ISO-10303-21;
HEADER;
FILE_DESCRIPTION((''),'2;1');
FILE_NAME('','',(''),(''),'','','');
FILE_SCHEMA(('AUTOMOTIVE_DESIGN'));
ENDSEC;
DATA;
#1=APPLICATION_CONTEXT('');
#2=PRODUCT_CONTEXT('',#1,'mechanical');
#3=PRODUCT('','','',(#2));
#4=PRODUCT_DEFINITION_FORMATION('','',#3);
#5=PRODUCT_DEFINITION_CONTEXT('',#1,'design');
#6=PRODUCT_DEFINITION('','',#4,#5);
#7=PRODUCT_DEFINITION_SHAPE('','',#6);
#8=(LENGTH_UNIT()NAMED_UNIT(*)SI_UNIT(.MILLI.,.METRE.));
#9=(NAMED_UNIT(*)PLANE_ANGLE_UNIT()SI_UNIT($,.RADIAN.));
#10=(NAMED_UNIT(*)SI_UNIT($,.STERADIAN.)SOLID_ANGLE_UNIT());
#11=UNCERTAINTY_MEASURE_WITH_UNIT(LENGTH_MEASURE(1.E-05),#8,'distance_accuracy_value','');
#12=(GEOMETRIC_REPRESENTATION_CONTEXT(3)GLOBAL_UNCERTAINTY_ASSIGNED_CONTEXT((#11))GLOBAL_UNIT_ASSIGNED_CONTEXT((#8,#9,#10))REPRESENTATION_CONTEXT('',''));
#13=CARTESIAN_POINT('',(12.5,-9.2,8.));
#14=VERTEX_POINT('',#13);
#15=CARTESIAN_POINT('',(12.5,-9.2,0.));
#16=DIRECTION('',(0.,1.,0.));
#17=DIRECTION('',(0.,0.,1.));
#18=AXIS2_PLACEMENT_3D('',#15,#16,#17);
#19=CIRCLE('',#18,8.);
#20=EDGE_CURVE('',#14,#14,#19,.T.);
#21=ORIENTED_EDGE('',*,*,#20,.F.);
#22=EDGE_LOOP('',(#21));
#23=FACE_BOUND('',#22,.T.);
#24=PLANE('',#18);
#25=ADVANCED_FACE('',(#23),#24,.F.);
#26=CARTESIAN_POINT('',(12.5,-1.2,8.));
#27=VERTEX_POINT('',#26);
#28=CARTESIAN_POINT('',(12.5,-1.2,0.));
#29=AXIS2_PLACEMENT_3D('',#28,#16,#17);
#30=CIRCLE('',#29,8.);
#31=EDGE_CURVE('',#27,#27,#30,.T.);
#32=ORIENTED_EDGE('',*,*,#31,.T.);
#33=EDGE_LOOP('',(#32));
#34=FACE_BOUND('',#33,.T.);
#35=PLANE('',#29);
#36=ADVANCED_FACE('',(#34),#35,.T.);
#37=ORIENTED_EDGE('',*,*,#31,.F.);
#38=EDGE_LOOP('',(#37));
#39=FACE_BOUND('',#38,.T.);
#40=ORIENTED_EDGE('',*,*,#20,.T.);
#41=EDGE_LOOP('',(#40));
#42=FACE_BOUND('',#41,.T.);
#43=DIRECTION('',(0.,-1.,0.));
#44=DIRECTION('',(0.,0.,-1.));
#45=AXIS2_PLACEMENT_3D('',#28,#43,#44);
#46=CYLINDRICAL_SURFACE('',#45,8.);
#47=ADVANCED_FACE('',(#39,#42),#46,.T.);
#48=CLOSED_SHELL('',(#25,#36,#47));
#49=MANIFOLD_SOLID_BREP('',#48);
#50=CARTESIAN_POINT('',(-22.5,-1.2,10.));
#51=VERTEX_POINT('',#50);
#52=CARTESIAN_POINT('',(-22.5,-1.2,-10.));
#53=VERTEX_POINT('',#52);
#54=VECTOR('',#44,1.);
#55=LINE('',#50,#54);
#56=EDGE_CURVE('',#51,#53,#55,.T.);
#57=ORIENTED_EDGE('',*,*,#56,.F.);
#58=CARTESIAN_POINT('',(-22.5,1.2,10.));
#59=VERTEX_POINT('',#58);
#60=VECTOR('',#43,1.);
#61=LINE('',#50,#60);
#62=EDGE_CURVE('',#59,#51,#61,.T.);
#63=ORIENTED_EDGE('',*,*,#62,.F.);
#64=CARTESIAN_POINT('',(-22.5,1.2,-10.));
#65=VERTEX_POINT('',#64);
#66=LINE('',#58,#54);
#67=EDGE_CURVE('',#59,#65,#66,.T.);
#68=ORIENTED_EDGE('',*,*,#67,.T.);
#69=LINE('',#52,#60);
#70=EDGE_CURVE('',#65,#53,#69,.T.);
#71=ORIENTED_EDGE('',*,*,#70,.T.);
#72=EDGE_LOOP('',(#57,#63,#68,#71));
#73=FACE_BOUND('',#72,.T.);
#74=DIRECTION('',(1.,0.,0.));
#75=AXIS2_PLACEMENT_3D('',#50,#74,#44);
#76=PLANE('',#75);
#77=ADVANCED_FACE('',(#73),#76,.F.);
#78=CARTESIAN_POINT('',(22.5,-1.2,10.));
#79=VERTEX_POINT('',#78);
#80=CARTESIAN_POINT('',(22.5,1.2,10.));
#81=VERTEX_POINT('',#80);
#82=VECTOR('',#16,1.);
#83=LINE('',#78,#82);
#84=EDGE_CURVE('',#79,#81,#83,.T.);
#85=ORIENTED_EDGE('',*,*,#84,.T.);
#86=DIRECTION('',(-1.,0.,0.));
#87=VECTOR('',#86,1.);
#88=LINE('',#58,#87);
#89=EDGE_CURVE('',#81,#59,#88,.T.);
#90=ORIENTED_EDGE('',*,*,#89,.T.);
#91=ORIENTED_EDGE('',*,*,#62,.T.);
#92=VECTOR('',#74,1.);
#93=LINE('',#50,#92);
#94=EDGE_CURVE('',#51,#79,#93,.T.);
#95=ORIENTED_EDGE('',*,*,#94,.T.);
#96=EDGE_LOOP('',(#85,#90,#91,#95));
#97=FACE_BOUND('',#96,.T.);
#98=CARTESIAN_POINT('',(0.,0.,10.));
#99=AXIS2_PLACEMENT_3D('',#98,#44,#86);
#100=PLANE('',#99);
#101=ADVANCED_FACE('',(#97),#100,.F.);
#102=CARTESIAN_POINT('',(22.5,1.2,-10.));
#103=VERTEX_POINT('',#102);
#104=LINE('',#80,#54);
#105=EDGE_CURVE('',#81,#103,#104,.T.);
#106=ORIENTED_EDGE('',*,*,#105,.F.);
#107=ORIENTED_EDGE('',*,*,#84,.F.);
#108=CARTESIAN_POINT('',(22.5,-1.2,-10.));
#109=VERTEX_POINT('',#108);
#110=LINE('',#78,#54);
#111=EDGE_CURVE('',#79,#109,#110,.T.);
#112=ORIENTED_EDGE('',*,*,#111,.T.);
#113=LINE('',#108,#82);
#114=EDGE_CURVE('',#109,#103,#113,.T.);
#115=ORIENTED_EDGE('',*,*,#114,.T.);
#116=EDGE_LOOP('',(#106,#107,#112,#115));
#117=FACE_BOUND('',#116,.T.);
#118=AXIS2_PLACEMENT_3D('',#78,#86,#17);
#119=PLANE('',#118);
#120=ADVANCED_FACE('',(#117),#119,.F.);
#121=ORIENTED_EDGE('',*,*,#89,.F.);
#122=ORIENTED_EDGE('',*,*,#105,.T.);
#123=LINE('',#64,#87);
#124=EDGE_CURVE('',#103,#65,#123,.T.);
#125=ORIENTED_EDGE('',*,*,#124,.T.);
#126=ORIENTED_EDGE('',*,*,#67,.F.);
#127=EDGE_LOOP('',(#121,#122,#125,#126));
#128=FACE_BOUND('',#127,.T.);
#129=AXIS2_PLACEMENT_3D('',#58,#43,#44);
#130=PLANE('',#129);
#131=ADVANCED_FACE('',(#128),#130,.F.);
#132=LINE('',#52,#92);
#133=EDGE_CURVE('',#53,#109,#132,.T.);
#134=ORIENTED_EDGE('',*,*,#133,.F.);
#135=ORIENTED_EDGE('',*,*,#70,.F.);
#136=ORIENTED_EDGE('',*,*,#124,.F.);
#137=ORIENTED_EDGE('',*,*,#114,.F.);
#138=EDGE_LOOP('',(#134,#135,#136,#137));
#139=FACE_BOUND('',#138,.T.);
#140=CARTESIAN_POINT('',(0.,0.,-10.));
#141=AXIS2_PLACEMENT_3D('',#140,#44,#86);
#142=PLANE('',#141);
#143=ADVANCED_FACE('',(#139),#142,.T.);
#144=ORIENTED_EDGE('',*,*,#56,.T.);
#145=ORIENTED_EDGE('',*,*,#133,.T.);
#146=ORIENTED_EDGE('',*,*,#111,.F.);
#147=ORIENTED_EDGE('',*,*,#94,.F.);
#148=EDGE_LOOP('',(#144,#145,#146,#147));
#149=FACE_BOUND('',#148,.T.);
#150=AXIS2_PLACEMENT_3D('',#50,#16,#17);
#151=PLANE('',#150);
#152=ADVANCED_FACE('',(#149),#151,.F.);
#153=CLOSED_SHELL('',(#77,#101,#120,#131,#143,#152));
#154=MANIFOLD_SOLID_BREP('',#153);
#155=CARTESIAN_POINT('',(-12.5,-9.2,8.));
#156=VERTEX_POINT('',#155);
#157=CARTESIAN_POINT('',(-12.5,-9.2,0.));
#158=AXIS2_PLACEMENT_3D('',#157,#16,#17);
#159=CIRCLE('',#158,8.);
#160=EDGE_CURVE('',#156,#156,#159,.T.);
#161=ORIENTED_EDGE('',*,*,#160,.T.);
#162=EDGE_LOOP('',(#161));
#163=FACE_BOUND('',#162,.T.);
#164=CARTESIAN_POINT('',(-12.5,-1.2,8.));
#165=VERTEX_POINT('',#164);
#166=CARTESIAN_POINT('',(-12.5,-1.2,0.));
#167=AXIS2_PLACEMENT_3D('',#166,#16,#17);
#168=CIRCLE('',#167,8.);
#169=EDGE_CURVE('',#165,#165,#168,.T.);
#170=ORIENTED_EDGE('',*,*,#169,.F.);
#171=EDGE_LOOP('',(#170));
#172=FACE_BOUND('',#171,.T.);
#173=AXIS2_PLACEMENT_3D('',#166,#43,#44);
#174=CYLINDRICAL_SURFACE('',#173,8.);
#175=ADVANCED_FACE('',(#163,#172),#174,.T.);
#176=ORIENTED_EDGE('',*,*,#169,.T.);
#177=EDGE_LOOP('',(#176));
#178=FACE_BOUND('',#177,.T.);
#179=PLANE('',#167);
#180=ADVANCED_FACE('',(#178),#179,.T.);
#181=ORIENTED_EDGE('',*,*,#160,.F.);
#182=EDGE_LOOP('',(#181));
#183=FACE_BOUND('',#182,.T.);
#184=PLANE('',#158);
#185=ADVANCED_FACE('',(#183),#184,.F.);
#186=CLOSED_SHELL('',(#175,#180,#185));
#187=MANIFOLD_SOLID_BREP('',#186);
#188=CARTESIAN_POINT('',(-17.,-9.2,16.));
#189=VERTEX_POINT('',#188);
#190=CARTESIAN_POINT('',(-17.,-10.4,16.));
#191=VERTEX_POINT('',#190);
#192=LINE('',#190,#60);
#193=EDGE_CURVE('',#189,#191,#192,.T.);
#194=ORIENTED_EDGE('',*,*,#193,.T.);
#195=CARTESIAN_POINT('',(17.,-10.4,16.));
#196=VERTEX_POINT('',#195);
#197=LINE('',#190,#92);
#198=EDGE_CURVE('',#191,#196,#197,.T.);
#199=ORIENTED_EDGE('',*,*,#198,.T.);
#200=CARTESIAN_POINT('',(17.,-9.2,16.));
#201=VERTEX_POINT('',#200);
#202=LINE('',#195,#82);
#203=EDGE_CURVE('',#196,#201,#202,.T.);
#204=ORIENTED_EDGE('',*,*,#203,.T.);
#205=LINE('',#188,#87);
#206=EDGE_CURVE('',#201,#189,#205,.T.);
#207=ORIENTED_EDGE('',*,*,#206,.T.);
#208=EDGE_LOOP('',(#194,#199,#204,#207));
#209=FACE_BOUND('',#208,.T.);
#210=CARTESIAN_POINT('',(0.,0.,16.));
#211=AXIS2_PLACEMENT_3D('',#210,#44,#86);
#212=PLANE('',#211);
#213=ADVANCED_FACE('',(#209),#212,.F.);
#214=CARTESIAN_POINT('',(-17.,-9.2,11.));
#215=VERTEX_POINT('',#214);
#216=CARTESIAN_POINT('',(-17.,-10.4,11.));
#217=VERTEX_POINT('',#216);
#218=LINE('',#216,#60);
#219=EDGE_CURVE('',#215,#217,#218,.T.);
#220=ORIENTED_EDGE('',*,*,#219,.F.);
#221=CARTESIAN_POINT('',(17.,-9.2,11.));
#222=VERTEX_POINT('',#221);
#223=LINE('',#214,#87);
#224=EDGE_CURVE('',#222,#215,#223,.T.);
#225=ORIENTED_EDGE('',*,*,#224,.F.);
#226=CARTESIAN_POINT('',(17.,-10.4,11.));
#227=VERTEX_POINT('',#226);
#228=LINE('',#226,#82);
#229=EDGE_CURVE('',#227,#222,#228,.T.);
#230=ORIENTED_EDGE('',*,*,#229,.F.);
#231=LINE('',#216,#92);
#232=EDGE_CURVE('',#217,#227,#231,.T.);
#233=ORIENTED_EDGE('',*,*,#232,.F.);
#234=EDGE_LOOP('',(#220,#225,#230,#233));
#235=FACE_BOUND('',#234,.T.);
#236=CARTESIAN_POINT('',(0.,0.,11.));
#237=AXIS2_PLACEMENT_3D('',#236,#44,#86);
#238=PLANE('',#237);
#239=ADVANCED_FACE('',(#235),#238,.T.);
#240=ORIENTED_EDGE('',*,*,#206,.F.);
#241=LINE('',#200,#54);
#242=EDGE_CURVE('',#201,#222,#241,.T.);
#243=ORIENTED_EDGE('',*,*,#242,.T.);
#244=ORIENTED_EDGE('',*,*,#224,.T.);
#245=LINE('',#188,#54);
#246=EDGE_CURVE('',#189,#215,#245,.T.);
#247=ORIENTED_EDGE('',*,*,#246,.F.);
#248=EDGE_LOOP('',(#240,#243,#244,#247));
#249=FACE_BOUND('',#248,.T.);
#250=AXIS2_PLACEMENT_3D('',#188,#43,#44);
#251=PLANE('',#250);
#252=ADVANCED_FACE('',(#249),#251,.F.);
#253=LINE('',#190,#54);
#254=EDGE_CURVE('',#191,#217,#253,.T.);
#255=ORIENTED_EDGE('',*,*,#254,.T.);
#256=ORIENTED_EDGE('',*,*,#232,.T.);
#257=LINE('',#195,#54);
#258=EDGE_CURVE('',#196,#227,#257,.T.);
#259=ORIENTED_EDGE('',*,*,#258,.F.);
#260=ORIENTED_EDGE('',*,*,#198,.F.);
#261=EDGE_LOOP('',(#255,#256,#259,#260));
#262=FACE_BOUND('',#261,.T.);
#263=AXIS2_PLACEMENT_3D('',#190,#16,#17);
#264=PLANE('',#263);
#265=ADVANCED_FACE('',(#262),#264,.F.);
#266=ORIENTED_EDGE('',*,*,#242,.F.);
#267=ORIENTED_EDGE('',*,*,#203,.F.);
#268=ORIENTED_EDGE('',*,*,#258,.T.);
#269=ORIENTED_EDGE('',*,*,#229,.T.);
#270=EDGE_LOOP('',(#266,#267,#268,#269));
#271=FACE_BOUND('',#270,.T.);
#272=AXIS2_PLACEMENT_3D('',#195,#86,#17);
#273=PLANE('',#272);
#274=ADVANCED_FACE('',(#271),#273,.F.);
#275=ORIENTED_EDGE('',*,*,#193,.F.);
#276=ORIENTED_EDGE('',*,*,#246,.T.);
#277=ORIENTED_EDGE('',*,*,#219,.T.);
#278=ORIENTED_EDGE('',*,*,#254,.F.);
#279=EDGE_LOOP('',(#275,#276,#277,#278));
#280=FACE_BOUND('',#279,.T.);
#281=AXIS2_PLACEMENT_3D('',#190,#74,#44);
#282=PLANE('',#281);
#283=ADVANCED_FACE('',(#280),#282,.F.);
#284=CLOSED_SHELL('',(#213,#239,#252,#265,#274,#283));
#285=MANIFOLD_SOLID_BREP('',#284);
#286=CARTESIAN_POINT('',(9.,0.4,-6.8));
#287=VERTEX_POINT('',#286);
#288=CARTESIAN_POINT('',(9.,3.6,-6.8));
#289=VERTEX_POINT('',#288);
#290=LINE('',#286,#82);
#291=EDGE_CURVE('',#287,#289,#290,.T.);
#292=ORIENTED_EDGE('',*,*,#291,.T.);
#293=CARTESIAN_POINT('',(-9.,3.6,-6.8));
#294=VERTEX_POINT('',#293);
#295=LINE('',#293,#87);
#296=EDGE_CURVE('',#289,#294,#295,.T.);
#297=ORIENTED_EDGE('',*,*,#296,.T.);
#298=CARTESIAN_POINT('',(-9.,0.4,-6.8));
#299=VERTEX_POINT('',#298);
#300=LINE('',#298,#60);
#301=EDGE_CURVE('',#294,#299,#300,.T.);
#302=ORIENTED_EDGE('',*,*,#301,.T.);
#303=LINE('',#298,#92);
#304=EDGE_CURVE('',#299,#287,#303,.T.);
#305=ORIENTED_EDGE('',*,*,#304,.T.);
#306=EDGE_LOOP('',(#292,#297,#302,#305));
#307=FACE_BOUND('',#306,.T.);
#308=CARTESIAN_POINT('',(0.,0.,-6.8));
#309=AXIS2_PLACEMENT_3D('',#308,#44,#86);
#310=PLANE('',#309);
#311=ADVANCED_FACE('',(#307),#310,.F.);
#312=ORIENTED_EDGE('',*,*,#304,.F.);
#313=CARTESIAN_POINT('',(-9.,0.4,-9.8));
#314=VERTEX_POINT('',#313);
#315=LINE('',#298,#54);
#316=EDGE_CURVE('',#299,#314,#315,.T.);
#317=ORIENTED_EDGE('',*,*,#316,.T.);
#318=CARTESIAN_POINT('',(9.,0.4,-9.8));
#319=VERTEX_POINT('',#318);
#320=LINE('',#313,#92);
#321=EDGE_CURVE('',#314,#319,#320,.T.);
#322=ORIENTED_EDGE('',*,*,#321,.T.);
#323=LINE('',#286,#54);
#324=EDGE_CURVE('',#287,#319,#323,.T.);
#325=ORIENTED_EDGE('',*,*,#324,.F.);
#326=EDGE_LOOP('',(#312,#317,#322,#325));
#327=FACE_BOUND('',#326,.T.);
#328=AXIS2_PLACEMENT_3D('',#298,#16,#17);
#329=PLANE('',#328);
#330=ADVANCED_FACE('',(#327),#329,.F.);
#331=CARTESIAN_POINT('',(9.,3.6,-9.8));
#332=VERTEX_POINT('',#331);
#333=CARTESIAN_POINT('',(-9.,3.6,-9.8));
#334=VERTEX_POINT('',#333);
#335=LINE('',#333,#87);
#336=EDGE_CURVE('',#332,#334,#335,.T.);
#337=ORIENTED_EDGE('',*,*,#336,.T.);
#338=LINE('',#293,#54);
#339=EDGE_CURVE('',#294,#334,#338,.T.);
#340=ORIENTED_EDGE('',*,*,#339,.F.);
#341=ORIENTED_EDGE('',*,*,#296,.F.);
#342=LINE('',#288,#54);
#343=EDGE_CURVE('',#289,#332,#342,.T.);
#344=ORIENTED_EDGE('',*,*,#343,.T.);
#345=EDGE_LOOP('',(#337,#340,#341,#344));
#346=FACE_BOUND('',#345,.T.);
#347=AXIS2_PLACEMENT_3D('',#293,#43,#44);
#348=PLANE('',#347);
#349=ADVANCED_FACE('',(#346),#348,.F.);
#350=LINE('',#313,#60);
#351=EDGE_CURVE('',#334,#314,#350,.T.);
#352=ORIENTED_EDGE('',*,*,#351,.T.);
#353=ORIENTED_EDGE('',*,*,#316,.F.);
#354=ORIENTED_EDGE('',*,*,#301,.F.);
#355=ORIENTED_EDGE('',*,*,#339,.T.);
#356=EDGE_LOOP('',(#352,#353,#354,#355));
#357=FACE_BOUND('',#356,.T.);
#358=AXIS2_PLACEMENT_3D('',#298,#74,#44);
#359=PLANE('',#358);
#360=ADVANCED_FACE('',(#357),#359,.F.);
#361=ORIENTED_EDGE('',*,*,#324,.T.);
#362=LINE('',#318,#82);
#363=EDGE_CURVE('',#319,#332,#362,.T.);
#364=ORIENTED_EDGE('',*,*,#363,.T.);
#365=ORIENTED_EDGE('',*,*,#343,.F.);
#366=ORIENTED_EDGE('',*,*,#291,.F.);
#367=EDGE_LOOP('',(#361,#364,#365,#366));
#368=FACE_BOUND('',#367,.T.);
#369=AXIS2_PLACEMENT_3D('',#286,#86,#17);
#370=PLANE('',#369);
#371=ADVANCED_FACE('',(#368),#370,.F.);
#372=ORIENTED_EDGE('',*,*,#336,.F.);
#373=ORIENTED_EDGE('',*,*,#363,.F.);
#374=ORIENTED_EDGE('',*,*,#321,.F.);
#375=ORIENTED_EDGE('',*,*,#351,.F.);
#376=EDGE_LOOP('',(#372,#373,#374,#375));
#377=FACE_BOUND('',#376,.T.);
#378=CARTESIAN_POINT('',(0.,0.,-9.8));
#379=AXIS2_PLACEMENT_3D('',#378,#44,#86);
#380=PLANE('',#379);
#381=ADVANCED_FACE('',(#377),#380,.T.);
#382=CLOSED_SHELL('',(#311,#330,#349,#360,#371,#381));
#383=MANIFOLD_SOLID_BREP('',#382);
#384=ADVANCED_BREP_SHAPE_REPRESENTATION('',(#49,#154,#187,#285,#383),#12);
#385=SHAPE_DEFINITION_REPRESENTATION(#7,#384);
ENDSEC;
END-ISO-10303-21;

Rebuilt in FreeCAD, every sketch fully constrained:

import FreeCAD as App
import Part
import Sketcher

doc = App.newDocument("Part")
body = doc.addObject("PartDesign::Body", "Body")

# Sketch on XY plane
sketch1 = body.newObject("Sketcher::SketchObject", "Sketch")
sketch1.AttachmentSupport = (doc.getObject("XY_Plane"), [""])
sketch1.MapMode = "FlatFace"
sketch1.AttachmentOffset = App.Placement(App.Vector(0, 0, -10), App.Rotation())
sketch1.addGeometry(Part.LineSegment(App.Vector(-22.5, 1.2, 0), App.Vector(-22.5, -1.2, 0)), False)
sketch1.addGeometry(Part.LineSegment(App.Vector(-22.5, -1.2, 0), App.Vector(22.5, -1.2, 0)), False)
sketch1.addGeometry(Part.LineSegment(App.Vector(22.5, -1.2, 0), App.Vector(22.5, 1.2, 0)), False)
sketch1.addGeometry(Part.LineSegment(App.Vector(22.5, 1.2, 0), App.Vector(-22.5, 1.2, 0)), False)
sketch1.addConstraint(Sketcher.Constraint("Coincident", 0, 2, 1, 1))
sketch1.addConstraint(Sketcher.Constraint("Coincident", 1, 2, 2, 1))
sketch1.addConstraint(Sketcher.Constraint("Coincident", 2, 2, 3, 1))
sketch1.addConstraint(Sketcher.Constraint("Coincident", 3, 2, 0, 1))
sketch1.addConstraint(Sketcher.Constraint("Vertical", 0))
sketch1.addConstraint(Sketcher.Constraint("Horizontal", 1))
sketch1.addConstraint(Sketcher.Constraint("Vertical", 2))
sketch1.addConstraint(Sketcher.Constraint("Horizontal", 3))
sketch1.addConstraint(Sketcher.Constraint("Symmetric", 0, 2, 2, 2, -1, 1))
sketch1.addConstraint(Sketcher.Constraint("DistanceX", 1, 1, 1, 2, 45.0))
sketch1.addConstraint(Sketcher.Constraint("DistanceY", 0, 2, 0, 1, 2.4))
pad1 = body.newObject("PartDesign::Pad", "Pad")
pad1.Profile = sketch1
pad1.Length = 20
body2 = doc.addObject("PartDesign::Body", "Body001")

# Sketch on XZ plane
sketch2 = body2.newObject("Sketcher::SketchObject", "Sketch001")
sketch2.AttachmentSupport = (doc.getObject("XZ_Plane001"), [""])
sketch2.MapMode = "FlatFace"
sketch2.AttachmentOffset = App.Placement(App.Vector(0, 0, 9.2), App.Rotation())
sketch2.addGeometry(Part.Circle(App.Vector(-12, 0, 0), App.Vector(0, 0, 1), 8), False)
sketch2.addConstraint(Sketcher.Constraint("PointOnObject", 0, 3, -1))
sketch2.addConstraint(Sketcher.Constraint("Diameter", 0, 16.0))
sketch2.addConstraint(Sketcher.Constraint("DistanceX", 0, 3, -1, 1, 12.5))
pad2 = body2.newObject("PartDesign::Pad", "Pad001")
pad2.Profile = sketch2
pad2.Length = 8
pad2.Reversed = True
body3 = doc.addObject("PartDesign::Body", "Body002")

# Sketch on XZ plane
sketch3 = body3.newObject("Sketcher::SketchObject", "Sketch002")
sketch3.AttachmentSupport = (doc.getObject("XZ_Plane002"), [""])
sketch3.MapMode = "FlatFace"
sketch3.AttachmentOffset = App.Placement(App.Vector(0, 0, 9.2), App.Rotation())
sketch3.addGeometry(Part.Circle(App.Vector(12, 0, 0), App.Vector(0, 0, 1), 8), False)
sketch3.addConstraint(Sketcher.Constraint("PointOnObject", 0, 3, -1))
sketch3.addConstraint(Sketcher.Constraint("Diameter", 0, 16.0))
sketch3.addConstraint(Sketcher.Constraint("DistanceX", -1, 1, 0, 3, 12.5))
pad3 = body3.newObject("PartDesign::Pad", "Pad002")
pad3.Profile = sketch3
pad3.Length = 8
pad3.Reversed = True
body4 = doc.addObject("PartDesign::Body", "Body003")

# Sketch on XY plane
sketch4 = body4.newObject("Sketcher::SketchObject", "Sketch003")
sketch4.AttachmentSupport = (doc.getObject("XY_Plane003"), [""])
sketch4.MapMode = "FlatFace"
sketch4.AttachmentOffset = App.Placement(App.Vector(0, 0, -9.8), App.Rotation())
sketch4.addGeometry(Part.LineSegment(App.Vector(-9, 3.6, 0), App.Vector(-9, 0.4, 0)), False)
sketch4.addGeometry(Part.LineSegment(App.Vector(-9, 0.4, 0), App.Vector(9, 0.4, 0)), False)
sketch4.addGeometry(Part.LineSegment(App.Vector(9, 0.4, 0), App.Vector(9, 3.6, 0)), False)
sketch4.addGeometry(Part.LineSegment(App.Vector(9, 3.6, 0), App.Vector(-9, 3.6, 0)), False)
sketch4.addConstraint(Sketcher.Constraint("Coincident", 0, 2, 1, 1))
sketch4.addConstraint(Sketcher.Constraint("Coincident", 1, 2, 2, 1))
sketch4.addConstraint(Sketcher.Constraint("Coincident", 2, 2, 3, 1))
sketch4.addConstraint(Sketcher.Constraint("Coincident", 3, 2, 0, 1))
sketch4.addConstraint(Sketcher.Constraint("Vertical", 0))
sketch4.addConstraint(Sketcher.Constraint("Horizontal", 1))
sketch4.addConstraint(Sketcher.Constraint("Vertical", 2))
sketch4.addConstraint(Sketcher.Constraint("Horizontal", 3))
sketch4.addConstraint(Sketcher.Constraint("DistanceX", 1, 1, 1, 2, 18.0))
sketch4.addConstraint(Sketcher.Constraint("DistanceY", 0, 2, 0, 1, 3.2))
sketch4.addConstraint(Sketcher.Constraint("DistanceX", 0, 2, -1, 1, 9.0))
sketch4.addConstraint(Sketcher.Constraint("DistanceY", -1, 1, 0, 2, 0.4))
pad4 = body4.newObject("PartDesign::Pad", "Pad003")
pad4.Profile = sketch4
pad4.Length = 3
body5 = doc.addObject("PartDesign::Body", "Body004")

# Sketch on XY plane
sketch5 = body5.newObject("Sketcher::SketchObject", "Sketch004")
sketch5.AttachmentSupport = (doc.getObject("XY_Plane004"), [""])
sketch5.MapMode = "FlatFace"
sketch5.AttachmentOffset = App.Placement(App.Vector(0, 0, 11), App.Rotation())
sketch5.addGeometry(Part.LineSegment(App.Vector(-17, -9.2, 0), App.Vector(-17, -10.4, 0)), False)
sketch5.addGeometry(Part.LineSegment(App.Vector(-17, -10.4, 0), App.Vector(17, -10.4, 0)), False)
sketch5.addGeometry(Part.LineSegment(App.Vector(17, -10.4, 0), App.Vector(17, -9.2, 0)), False)
sketch5.addGeometry(Part.LineSegment(App.Vector(17, -9.2, 0), App.Vector(-17, -9.2, 0)), False)
sketch5.addConstraint(Sketcher.Constraint("Coincident", 0, 2, 1, 1))
sketch5.addConstraint(Sketcher.Constraint("Coincident", 1, 2, 2, 1))
sketch5.addConstraint(Sketcher.Constraint("Coincident", 2, 2, 3, 1))
sketch5.addConstraint(Sketcher.Constraint("Coincident", 3, 2, 0, 1))
sketch5.addConstraint(Sketcher.Constraint("Vertical", 0))
sketch5.addConstraint(Sketcher.Constraint("Horizontal", 1))
sketch5.addConstraint(Sketcher.Constraint("Vertical", 2))
sketch5.addConstraint(Sketcher.Constraint("Horizontal", 3))
sketch5.addConstraint(Sketcher.Constraint("DistanceX", 1, 1, 1, 2, 34.0))
sketch5.addConstraint(Sketcher.Constraint("DistanceY", 0, 2, 0, 1, 1.2))
sketch5.addConstraint(Sketcher.Constraint("DistanceX", 0, 2, -1, 1, 17.0))
sketch5.addConstraint(Sketcher.Constraint("DistanceY", 0, 2, -1, 1, 10.4))
pad5 = body5.newObject("PartDesign::Pad", "Pad004")
pad5.Profile = sketch5
pad5.Length = 5

doc.recompute()
